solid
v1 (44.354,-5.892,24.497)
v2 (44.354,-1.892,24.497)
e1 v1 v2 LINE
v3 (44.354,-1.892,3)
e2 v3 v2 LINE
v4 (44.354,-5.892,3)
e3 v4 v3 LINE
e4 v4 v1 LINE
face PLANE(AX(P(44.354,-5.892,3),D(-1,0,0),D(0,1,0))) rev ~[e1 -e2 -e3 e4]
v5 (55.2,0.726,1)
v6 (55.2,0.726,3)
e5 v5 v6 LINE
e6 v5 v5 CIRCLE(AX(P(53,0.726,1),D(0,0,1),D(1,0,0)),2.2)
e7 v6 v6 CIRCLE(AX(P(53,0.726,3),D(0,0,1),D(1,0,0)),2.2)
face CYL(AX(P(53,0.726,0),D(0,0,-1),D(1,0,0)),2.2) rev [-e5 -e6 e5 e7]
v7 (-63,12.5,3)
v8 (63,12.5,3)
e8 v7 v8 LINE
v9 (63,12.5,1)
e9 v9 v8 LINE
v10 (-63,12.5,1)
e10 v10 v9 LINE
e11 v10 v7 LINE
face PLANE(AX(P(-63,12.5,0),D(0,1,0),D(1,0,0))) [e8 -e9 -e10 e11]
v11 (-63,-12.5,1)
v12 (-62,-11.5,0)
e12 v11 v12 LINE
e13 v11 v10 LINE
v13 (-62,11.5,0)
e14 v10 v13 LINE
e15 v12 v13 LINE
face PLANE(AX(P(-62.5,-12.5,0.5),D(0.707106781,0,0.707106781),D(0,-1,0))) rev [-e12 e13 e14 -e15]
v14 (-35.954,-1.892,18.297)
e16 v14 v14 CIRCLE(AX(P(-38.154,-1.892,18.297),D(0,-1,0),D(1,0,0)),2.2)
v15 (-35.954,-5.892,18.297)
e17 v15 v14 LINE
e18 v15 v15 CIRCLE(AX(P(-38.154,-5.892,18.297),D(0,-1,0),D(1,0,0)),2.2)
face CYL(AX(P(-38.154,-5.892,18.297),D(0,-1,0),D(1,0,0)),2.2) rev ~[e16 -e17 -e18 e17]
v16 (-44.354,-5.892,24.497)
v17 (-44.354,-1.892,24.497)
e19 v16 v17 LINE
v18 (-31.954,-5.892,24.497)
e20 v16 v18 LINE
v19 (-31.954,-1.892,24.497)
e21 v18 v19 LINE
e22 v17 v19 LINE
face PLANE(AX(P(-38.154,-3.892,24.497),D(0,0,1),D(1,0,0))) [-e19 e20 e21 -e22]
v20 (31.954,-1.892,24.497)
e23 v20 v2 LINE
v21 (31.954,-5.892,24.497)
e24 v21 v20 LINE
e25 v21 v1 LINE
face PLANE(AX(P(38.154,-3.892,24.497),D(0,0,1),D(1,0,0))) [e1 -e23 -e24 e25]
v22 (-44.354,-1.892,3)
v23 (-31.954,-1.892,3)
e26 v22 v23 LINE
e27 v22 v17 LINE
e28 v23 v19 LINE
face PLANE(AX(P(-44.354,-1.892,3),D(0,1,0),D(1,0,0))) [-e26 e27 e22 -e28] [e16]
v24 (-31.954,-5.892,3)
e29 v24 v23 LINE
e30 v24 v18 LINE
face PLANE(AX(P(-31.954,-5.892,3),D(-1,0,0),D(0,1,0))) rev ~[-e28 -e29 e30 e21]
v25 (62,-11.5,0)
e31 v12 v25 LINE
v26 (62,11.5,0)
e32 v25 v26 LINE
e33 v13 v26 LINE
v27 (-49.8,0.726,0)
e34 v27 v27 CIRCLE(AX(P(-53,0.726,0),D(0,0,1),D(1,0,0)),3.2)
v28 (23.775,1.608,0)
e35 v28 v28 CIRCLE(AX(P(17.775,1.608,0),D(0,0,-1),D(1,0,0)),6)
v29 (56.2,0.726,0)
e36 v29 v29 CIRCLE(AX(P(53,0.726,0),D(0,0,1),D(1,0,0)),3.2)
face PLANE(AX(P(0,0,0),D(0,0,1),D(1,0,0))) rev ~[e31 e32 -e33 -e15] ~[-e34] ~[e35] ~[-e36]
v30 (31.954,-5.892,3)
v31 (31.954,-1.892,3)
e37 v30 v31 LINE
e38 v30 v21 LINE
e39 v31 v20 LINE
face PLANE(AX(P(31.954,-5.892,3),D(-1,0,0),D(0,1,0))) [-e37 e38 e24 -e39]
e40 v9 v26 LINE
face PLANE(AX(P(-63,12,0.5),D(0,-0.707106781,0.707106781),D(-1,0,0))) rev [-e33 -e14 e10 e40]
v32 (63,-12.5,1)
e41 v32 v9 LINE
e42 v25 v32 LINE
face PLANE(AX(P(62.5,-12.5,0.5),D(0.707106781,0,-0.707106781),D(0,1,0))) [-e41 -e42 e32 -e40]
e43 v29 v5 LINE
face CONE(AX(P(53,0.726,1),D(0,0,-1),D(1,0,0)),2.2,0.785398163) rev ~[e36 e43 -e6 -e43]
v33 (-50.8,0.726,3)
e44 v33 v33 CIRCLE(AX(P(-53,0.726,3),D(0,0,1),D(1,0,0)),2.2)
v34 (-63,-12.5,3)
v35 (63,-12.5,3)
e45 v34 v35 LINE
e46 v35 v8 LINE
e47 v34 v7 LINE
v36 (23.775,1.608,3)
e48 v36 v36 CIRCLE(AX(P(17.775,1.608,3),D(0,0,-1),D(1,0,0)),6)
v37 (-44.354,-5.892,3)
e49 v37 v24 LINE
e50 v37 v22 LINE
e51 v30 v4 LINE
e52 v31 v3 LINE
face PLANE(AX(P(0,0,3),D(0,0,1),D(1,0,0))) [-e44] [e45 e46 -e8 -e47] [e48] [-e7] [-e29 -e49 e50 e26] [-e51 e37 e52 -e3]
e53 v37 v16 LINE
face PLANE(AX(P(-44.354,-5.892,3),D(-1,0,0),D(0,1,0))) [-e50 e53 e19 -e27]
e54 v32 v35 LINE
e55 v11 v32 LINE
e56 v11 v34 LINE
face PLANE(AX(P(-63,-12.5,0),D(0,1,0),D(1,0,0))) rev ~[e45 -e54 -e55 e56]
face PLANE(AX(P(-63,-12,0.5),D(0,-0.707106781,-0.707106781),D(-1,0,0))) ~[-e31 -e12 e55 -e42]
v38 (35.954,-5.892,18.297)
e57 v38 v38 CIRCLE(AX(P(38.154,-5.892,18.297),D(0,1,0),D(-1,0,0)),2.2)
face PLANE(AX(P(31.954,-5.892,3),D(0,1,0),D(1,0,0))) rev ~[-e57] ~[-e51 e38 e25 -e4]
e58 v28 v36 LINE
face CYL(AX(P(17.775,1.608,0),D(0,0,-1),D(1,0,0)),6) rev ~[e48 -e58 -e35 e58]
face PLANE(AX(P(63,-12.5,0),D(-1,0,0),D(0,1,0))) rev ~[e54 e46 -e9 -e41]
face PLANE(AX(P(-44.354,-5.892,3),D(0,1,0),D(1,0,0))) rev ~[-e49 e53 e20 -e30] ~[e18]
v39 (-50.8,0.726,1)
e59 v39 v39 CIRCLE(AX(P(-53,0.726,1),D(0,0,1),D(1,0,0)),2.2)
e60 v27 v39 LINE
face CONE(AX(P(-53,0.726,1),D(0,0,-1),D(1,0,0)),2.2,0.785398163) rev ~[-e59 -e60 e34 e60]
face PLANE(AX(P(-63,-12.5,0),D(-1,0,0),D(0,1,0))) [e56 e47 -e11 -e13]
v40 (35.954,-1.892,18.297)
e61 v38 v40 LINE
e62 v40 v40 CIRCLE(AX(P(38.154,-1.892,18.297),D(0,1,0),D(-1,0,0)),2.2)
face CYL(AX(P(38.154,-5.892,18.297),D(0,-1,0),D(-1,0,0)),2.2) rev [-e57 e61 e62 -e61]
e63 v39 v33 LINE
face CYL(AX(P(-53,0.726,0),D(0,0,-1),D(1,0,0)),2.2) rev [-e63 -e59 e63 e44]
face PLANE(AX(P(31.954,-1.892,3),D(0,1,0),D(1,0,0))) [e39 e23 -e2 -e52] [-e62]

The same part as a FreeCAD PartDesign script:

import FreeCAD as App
import Part
import Sketcher

V = App.Vector
Q = App.Units.Quantity


def edges_at(feature, points):
    """Names of the edges that pass closest to the given points."""
    edges = feature.Shape.Edges
    near = lambda p: min(range(len(edges)), key=lambda i: edges[i].distToShape(Part.Vertex(*p))[0])
    return sorted({f"Edge{near(p) + 1}" for p in points})

doc = App.newDocument("Part")
body = doc.addObject("PartDesign::Body", "Body")

sketch1 = doc.addObject("Sketcher::SketchObject", "Sketch")
body.addObject(sketch1)
sketch1.AttachmentSupport = (doc.XY_Plane, [""])
sketch1.MapMode = "FlatFace"
sketch1.addGeometry([
    Part.LineSegment(V(-63, 12.5, 0), V(-63, -12.5, 0)),
    Part.LineSegment(V(-63, -12.5, 0), V(63, -12.5, 0)),
    Part.LineSegment(V(63, -12.5, 0), V(63, 12.5, 0)),
    Part.LineSegment(V(63, 12.5, 0), V(-63, 12.5, 0)),
    Part.Circle(V(-53, 0.7, 0), V(0, 0, 1), 2.2),
    Part.Circle(V(53, 0.7, 0), V(0, 0, 1), 2.2),
], False)
sketch1.addConstraint([
    Sketcher.Constraint("Coincident", 0, 2, 1, 1),
    Sketcher.Constraint("Coincident", 1, 2, 2, 1),
    Sketcher.Constraint("Coincident", 2, 2, 3, 1),
    Sketcher.Constraint("Coincident", 3, 2, 0, 1),
    Sketcher.Constraint("Vertical", 0),
    Sketcher.Constraint("Horizontal", 1),
    Sketcher.Constraint("Vertical", 2),
    Sketcher.Constraint("Horizontal", 3),
    Sketcher.Constraint("Equal", 4, 5),
    Sketcher.Constraint("Symmetric", 0, 2, 2, 2, -1, 1),
    Sketcher.Constraint("Symmetric", 4, 3, 5, 3, -2),
    Sketcher.Constraint("Diameter", 4, Q("4.4 mm")),
    Sketcher.Constraint("DistanceX", 1, 1, 1, 2, Q("126 mm")),
    Sketcher.Constraint("DistanceY", 0, 2, 0, 1, Q("25 mm")),
    Sketcher.Constraint("DistanceX", 4, 3, -1, 1, Q("53 mm")),
    Sketcher.Constraint("DistanceY", -1, 1, 4, 3, Q("0.726 mm")),
])
pad1 = doc.addObject("PartDesign::Pad", "Pad")
body.addObject(pad1)
pad1.Profile = sketch1
pad1.Length = 3

sketch2 = doc.addObject("Sketcher::SketchObject", "Sketch001")
body.addObject(sketch2)
sketch2.AttachmentSupport = (doc.XY_Plane, [""])
sketch2.MapMode = "FlatFace"
sketch2.AttachmentOffset = App.Placement(V(0, 0, 3), App.Rotation())
sketch2.addGeometry([
    Part.LineSegment(V(-44.4, -1.9, 0), V(-44.4, -5.9, 0)),
    Part.LineSegment(V(-44.4, -5.9, 0), V(-32, -5.9, 0)),
    Part.LineSegment(V(-32, -5.9, 0), V(-32, -1.9, 0)),
    Part.LineSegment(V(-32, -1.9, 0), V(-44.4, -1.9, 0)),
    Part.LineSegment(V(32, -1.9, 0), V(32, -5.9, 0)),
    Part.LineSegment(V(32, -5.9, 0), V(44.4, -5.9, 0)),
    Part.LineSegment(V(44.4, -5.9, 0), V(44.4, -1.9, 0)),
    Part.LineSegment(V(44.4, -1.9, 0), V(32, -1.9, 0)),
], False)
sketch2.addConstraint([
    Sketcher.Constraint("Coincident", 0, 2, 1, 1),
    Sketcher.Constraint("Coincident", 1, 2, 2, 1),
    Sketcher.Constraint("Coincident", 2, 2, 3, 1),
    Sketcher.Constraint("Coincident", 3, 2, 0, 1),
    Sketcher.Constraint("Coincident", 4, 2, 5, 1),
    Sketcher.Constraint("Coincident", 5, 2, 6, 1),
    Sketcher.Constraint("Coincident", 6, 2, 7, 1),
    Sketcher.Constraint("Coincident", 7, 2, 4, 1),
    Sketcher.Constraint("Vertical", 0),
    Sketcher.Constraint("Horizontal", 1),
    Sketcher.Constraint("Vertical", 2),
    Sketcher.Constraint("Horizontal", 3),
    Sketcher.Constraint("Vertical", 4),
    Sketcher.Constraint("Horizontal", 5),
    Sketcher.Constraint("Vertical", 6),
    Sketcher.Constraint("Horizontal", 7),
    Sketcher.Constraint("Symmetric", 1, 2, 4, 2, -2),
    Sketcher.Constraint("Symmetric", 3, 2, 6, 2, -2),
    Sketcher.Constraint("DistanceY", 0, 2, 0, 1, Q("4 mm")),
    Sketcher.Constraint("DistanceX", 1, 1, 1, 2, Q("12.4 mm")),
    Sketcher.Constraint("DistanceX", 0, 2, -1, 1, Q("44.354 mm")),
    Sketcher.Constraint("DistanceY", 0, 2, -1, 1, Q("5.892 mm")),
])
pad2 = doc.addObject("PartDesign::Pad", "Pad001")
body.addObject(pad2)
pad2.Profile = sketch2
pad2.Length = 21.497

sketch3 = doc.addObject("Sketcher::SketchObject", "Sketch002")
body.addObject(sketch3)
sketch3.AttachmentSupport = (doc.XZ_Plane, [""])
sketch3.MapMode = "FlatFace"
sketch3.AttachmentOffset = App.Placement(V(0, 0, 5.892), App.Rotation())
sketch3.addGeometry(Part.Circle(V(-38.2, 18.3, 0), V(0, 0, 1), 2.2), False)
sketch3.addConstraint([
    Sketcher.Constraint("Diameter", 0, Q("4.4 mm")),
    Sketcher.Constraint("DistanceX", 0, 3, -1, 1, Q("38.154 mm")),
    Sketcher.Constraint("DistanceY", -1, 1, 0, 3, Q("18.297 mm")),
])
pocket1 = doc.addObject("PartDesign::Pocket", "Pocket")
body.addObject(pocket1)
pocket1.Profile = sketch3
pocket1.Length = 4
doc.recompute()

mirrored = doc.addObject("PartDesign::Mirrored", "Mirrored")
body.addObject(mirrored)
mirrored.Originals = [pocket1]
mirrored.MirrorPlane = (doc.YZ_Plane, [""])
body.Tip = mirrored
doc.recompute()

chamfer = doc.addObject("PartDesign::Chamfer", "Chamfer")
body.addObject(chamfer)
chamfer.Base = (mirrored, edges_at(mirrored, [
    (0, 12.5, 0),
    (63, 0, 0),
    (0, -12.5, 0),
    (-63, 0, 0),
    (50.8, 0.726, 0),
    (-55.2, 0.726, 0),
]))
chamfer.Size = 1

sketch4 = doc.addObject("Sketcher::SketchObject", "Sketch003")
body.addObject(sketch4)
sketch4.AttachmentSupport = (doc.XY_Plane, [""])
sketch4.MapMode = "FlatFace"
sketch4.addGeometry(Part.Circle(V(18, 2, 0), V(0, 0, 1), 6), False)
sketch4.addConstraint([
    Sketcher.Constraint("Diameter", 0, Q("12 mm")),
    Sketcher.Constraint("DistanceX", -1, 1, 0, 3, Q("17.775 mm")),
    Sketcher.Constraint("DistanceY", -1, 1, 0, 3, Q("1.608 mm")),
])
pocket2 = doc.addObject("PartDesign::Pocket", "Pocket001")
body.addObject(pocket2)
pocket2.Profile = sketch4
pocket2.Type = "ThroughAll"
pocket2.Reversed = True

doc.recompute()
